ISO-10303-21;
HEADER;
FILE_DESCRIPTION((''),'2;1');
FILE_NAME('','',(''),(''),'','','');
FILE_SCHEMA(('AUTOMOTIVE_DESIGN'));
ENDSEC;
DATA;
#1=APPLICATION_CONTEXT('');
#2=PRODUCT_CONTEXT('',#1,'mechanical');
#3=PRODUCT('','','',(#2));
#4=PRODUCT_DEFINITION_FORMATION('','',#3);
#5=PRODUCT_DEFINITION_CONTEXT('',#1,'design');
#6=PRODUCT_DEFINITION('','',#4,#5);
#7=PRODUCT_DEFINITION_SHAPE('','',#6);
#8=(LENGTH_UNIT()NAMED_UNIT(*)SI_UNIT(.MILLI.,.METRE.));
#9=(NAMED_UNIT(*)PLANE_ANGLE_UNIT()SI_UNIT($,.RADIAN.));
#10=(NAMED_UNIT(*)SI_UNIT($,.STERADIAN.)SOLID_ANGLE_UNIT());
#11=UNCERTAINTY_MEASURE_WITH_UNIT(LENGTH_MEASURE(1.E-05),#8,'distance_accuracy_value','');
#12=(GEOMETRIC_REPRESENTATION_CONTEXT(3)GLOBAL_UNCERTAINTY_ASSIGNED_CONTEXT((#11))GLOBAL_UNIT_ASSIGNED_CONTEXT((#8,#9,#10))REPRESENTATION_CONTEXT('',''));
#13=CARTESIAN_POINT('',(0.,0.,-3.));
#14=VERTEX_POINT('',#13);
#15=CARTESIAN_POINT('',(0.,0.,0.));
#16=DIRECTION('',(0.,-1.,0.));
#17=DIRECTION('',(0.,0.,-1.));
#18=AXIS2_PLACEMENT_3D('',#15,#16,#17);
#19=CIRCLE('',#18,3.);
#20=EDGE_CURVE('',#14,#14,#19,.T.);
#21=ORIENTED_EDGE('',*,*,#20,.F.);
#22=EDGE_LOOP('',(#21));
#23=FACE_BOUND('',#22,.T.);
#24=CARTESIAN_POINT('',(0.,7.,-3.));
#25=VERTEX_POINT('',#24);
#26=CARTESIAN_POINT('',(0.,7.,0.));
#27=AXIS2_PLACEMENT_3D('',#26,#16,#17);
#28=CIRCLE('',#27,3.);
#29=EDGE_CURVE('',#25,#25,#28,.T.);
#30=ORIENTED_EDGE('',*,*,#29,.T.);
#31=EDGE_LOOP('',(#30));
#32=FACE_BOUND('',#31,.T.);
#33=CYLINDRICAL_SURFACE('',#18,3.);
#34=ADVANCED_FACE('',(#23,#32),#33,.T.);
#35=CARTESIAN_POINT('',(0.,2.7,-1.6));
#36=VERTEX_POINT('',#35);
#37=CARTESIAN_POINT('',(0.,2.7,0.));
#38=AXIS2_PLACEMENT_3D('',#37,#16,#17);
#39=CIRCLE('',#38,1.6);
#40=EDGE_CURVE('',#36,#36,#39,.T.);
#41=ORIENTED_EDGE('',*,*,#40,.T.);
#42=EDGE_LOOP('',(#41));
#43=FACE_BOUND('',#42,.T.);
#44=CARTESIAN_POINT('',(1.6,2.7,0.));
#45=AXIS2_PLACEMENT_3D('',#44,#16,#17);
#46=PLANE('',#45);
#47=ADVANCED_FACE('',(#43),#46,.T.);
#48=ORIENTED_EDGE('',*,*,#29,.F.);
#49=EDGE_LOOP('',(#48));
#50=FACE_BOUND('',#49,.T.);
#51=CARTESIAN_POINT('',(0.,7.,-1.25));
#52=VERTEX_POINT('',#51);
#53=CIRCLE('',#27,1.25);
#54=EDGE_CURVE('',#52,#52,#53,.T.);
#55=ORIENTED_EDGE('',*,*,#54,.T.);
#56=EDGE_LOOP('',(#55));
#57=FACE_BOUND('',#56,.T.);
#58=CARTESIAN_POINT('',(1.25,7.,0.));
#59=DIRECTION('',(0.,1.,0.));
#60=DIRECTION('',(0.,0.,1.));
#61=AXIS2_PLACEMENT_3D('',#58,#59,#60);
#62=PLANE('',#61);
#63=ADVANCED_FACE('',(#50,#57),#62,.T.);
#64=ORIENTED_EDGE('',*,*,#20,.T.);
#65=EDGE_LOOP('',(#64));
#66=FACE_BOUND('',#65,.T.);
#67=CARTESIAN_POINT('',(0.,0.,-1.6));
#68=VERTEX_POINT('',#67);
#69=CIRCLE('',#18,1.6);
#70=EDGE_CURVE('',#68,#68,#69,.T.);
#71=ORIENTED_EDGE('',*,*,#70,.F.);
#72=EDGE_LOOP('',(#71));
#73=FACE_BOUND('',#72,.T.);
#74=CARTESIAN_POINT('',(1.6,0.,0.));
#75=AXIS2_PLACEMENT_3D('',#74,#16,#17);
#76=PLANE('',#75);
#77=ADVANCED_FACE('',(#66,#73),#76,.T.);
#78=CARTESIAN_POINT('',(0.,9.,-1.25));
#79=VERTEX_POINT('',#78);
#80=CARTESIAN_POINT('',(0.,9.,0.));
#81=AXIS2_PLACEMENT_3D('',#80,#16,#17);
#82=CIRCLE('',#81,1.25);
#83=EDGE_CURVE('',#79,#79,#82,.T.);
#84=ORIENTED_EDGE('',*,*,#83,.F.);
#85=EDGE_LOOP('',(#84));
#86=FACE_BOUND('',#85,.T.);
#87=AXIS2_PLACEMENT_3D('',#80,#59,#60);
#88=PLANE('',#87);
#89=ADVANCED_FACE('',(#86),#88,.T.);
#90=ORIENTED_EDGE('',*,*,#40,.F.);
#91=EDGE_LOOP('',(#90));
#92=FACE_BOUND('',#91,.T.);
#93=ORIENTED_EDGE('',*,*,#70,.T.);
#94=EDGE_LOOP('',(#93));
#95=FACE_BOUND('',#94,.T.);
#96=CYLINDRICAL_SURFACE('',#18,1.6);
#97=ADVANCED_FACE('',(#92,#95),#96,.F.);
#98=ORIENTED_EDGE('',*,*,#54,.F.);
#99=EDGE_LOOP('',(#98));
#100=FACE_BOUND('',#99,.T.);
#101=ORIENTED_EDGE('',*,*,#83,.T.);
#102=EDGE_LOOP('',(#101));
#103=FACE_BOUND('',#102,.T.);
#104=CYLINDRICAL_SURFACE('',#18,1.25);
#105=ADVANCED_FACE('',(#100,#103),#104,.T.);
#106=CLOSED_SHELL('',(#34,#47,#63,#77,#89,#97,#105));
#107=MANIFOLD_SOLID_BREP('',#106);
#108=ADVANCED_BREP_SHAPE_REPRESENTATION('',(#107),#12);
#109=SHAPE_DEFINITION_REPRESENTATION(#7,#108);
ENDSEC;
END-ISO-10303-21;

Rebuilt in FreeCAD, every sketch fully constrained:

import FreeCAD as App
import Part
import Sketcher

doc = App.newDocument("Part")
body = doc.addObject("PartDesign::Body", "Body")

# Sketch on XY plane
sketch1 = body.newObject("Sketcher::SketchObject", "Sketch")
sketch1.AttachmentSupport = (doc.getObject("XY_Plane"), [""])
sketch1.MapMode = "FlatFace"
sketch1.addGeometry([
    Part.LineSegment(App.Vector(0, 9, 0), App.Vector(0, 2.7, 0)),  # 0
    Part.LineSegment(App.Vector(0, 2.7, 0), App.Vector(1.6, 2.7, 0)),  # 1
    Part.LineSegment(App.Vector(1.6, 2.7, 0), App.Vector(1.6, 0, 0)),  # 2
    Part.LineSegment(App.Vector(1.6, 0, 0), App.Vector(3, 0, 0)),  # 3
    Part.LineSegment(App.Vector(3, 0, 0), App.Vector(3, 7, 0)),  # 4
    Part.LineSegment(App.Vector(3, 7, 0), App.Vector(1.2, 7, 0)),  # 5
    Part.LineSegment(App.Vector(1.2, 7, 0), App.Vector(1.2, 9, 0)),  # 6
    Part.LineSegment(App.Vector(1.2, 9, 0), App.Vector(0, 9, 0)),  # 7
], False)
sketch1.addConstraint([
    Sketcher.Constraint("Coincident", 0, 2, 1, 1),
    Sketcher.Constraint("Coincident", 1, 2, 2, 1),
    Sketcher.Constraint("Coincident", 2, 2, 3, 1),
    Sketcher.Constraint("Coincident", 3, 2, 4, 1),
    Sketcher.Constraint("Coincident", 4, 2, 5, 1),
    Sketcher.Constraint("Coincident", 5, 2, 6, 1),
    Sketcher.Constraint("Coincident", 6, 2, 7, 1),
    Sketcher.Constraint("Coincident", 7, 2, 0, 1),
    Sketcher.Constraint("Vertical", 0),
    Sketcher.Constraint("Horizontal", 1),
    Sketcher.Constraint("Vertical", 2),
    Sketcher.Constraint("Horizontal", 3),
    Sketcher.Constraint("Vertical", 4),
    Sketcher.Constraint("Horizontal", 5),
    Sketcher.Constraint("Vertical", 6),
    Sketcher.Constraint("Horizontal", 7),
    Sketcher.Constraint("PointOnObject", 0, 2, -2),
    Sketcher.Constraint("PointOnObject", 2, 2, -1),
    Sketcher.Constraint("DistanceY", 4, 1, 4, 2, 7.0),
    Sketcher.Constraint("DistanceY", 6, 1, 6, 2, 2.0),
    Sketcher.Constraint("DistanceX", 1, 1, 1, 2, 1.6),
    Sketcher.Constraint("DistanceX", 3, 1, 3, 2, 1.4),
    Sketcher.Constraint("DistanceY", 0, 2, 0, 1, 6.3),
    Sketcher.Constraint("DistanceX", 5, 2, 5, 1, 1.75),
])
revolution = body.newObject("PartDesign::Revolution", "Revolution")
revolution.Profile = sketch1
revolution.ReferenceAxis = (sketch1, ["V_Axis"])
revolution.Angle = 360

doc.recompute()
